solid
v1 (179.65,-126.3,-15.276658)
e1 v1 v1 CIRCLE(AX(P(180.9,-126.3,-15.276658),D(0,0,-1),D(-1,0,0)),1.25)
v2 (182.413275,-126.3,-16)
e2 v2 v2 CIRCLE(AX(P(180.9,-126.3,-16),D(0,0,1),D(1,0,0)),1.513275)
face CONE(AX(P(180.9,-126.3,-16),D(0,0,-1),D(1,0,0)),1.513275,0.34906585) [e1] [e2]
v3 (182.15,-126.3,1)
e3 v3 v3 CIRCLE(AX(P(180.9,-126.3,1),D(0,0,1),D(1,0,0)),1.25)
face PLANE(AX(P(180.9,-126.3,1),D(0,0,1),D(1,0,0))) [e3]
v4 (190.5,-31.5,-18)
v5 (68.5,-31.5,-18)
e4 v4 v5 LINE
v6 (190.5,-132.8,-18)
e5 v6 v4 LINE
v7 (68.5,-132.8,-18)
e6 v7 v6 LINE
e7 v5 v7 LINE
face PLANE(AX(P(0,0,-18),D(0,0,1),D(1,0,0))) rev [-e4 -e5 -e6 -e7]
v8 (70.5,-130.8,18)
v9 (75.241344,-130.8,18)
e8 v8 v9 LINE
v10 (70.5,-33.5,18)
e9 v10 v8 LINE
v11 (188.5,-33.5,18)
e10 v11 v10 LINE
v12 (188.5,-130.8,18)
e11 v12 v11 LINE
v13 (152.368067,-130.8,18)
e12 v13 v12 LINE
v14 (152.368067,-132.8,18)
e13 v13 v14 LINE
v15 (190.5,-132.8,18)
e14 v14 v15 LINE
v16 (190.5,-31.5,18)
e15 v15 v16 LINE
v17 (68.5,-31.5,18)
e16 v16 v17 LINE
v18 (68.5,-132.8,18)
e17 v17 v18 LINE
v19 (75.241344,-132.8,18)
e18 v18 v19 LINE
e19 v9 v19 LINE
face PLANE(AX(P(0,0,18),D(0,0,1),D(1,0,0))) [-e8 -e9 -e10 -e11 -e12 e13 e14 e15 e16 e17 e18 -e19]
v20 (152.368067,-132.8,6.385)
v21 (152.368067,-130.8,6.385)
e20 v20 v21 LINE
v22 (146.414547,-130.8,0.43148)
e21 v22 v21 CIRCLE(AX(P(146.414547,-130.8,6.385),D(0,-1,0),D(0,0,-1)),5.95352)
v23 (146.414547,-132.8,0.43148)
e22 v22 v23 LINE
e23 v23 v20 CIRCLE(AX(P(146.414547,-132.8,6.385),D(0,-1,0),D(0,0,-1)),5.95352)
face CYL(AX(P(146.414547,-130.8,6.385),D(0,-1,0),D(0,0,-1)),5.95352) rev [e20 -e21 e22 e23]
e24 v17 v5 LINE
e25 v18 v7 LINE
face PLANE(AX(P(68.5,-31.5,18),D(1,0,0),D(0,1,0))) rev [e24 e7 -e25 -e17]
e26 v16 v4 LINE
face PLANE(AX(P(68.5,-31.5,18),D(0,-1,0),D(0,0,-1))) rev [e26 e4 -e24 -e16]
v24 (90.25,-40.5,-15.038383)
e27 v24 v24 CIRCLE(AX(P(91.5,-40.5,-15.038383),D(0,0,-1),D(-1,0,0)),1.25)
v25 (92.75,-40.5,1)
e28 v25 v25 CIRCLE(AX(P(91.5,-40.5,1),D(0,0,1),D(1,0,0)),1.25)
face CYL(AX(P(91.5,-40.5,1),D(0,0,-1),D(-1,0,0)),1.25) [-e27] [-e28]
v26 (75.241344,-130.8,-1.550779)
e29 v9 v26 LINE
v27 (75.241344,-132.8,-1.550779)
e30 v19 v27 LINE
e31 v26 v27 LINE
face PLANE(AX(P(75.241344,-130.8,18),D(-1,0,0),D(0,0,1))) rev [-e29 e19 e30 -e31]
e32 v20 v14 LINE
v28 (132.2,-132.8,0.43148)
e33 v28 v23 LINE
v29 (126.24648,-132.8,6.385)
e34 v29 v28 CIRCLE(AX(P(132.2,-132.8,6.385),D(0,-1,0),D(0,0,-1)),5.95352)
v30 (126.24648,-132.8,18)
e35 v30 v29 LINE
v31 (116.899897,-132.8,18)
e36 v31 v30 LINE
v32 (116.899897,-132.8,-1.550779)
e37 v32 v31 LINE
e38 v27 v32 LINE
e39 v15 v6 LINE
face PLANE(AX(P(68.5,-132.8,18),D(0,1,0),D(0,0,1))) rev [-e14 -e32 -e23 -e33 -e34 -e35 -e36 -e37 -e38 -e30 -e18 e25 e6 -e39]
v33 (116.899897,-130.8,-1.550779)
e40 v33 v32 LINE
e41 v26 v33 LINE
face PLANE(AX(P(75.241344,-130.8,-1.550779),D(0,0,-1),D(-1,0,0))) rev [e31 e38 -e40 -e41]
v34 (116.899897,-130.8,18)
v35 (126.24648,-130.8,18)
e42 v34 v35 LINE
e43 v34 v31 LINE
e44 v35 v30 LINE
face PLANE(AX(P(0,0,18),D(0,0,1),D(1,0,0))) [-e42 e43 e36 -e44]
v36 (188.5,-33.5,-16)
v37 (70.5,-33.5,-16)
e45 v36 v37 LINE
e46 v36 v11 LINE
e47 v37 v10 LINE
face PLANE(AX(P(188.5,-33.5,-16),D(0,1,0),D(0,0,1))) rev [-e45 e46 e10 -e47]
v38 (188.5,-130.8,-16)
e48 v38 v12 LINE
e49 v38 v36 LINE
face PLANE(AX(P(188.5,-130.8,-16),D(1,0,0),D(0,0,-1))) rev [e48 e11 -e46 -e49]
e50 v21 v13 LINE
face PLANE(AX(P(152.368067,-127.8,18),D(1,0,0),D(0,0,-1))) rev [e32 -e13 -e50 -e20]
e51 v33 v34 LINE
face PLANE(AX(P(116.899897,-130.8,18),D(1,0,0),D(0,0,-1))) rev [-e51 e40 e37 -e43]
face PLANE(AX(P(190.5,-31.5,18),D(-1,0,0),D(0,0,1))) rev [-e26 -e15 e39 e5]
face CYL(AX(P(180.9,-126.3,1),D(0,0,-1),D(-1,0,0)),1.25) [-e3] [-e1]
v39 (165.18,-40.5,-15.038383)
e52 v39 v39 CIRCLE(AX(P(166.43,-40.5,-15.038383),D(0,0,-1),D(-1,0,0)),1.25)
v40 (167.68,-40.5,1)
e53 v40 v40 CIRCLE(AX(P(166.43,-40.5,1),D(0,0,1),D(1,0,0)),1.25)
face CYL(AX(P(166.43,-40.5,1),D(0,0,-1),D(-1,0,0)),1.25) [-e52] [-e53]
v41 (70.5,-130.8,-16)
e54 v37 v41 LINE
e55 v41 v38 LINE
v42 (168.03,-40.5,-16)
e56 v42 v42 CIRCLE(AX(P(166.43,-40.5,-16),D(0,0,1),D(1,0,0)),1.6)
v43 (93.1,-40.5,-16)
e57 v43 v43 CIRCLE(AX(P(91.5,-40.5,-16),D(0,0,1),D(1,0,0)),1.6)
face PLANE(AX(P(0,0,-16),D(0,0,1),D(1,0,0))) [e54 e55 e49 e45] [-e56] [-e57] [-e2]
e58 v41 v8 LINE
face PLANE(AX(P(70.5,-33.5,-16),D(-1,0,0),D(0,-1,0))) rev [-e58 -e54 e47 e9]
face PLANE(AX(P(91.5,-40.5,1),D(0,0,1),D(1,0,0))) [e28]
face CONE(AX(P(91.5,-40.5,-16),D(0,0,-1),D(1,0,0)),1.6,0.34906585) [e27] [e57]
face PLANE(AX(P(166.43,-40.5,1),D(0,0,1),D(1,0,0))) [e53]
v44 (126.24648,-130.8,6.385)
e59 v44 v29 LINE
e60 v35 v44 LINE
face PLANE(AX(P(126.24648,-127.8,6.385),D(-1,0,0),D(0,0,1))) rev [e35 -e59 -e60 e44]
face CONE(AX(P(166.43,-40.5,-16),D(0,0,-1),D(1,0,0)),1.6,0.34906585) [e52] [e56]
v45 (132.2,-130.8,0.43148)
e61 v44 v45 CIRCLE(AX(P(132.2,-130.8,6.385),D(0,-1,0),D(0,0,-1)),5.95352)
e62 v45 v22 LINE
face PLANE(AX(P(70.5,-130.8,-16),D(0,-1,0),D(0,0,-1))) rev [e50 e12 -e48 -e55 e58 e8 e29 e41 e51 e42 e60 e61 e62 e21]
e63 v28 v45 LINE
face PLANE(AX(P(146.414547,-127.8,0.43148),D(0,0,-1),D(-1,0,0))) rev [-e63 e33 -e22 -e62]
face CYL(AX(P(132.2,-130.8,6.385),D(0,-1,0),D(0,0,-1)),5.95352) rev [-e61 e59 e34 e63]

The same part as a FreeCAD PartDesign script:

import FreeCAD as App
import Part
import Sketcher
Q = App.Units.Quantity

doc = App.newDocument("Part")
body = doc.addObject("PartDesign::Body", "Body")

sketch1 = doc.addObject("Sketcher::SketchObject", "Sketch")
body.addObject(sketch1)
sketch1.AttachmentSupport = (doc.XY_Plane, [""])
sketch1.MapMode = "FlatFace"
sketch1.addGeometry([
    Part.LineSegment(App.Vector(68, -32, 0), App.Vector(68, -133, 0)),
    Part.LineSegment(App.Vector(68, -133, 0), App.Vector(190, -133, 0)),
    Part.LineSegment(App.Vector(190, -133, 0), App.Vector(190, -32, 0)),
    Part.LineSegment(App.Vector(190, -32, 0), App.Vector(68, -32, 0)),
], False)
sketch1.addConstraint([
    Sketcher.Constraint("Coincident", 0, 2, 1, 1),
    Sketcher.Constraint("Coincident", 1, 2, 2, 1),
    Sketcher.Constraint("Coincident", 2, 2, 3, 1),
    Sketcher.Constraint("Coincident", 3, 2, 0, 1),
    Sketcher.Constraint("Vertical", 0),
    Sketcher.Constraint("Horizontal", 1),
    Sketcher.Constraint("Vertical", 2),
    Sketcher.Constraint("Horizontal", 3),
    Sketcher.Constraint("DistanceX", 1, 1, 1, 2, Q("122 mm")),
    Sketcher.Constraint("DistanceY", 0, 2, 0, 1, Q("101.3 mm")),
    Sketcher.Constraint("DistanceX", -1, 1, 0, 2, Q("68.5 mm")),
    Sketcher.Constraint("DistanceY", 0, 2, -1, 1, Q("132.8 mm")),
])
pad1 = doc.addObject("PartDesign::Pad", "Pad")
body.addObject(pad1)
pad1.Profile = sketch1
pad1.Length = 36
pad1.Midplane = True

sketch2 = doc.addObject("Sketcher::SketchObject", "Sketch001")
body.addObject(sketch2)
sketch2.AttachmentSupport = (doc.XY_Plane, [""])
sketch2.MapMode = "FlatFace"
sketch2.AttachmentOffset = App.Placement(App.Vector(0, 0, 18), App.Rotation())
sketch2.addGeometry([
    Part.LineSegment(App.Vector(70, -34, 0), App.Vector(70, -131, 0)),
    Part.LineSegment(App.Vector(70, -131, 0), App.Vector(188, -131, 0)),
    Part.LineSegment(App.Vector(188, -131, 0), App.Vector(188, -34, 0)),
    Part.LineSegment(App.Vector(188, -34, 0), App.Vector(70, -34, 0)),
], False)
sketch2.addConstraint([
    Sketcher.Constraint("Coincident", 0, 2, 1, 1),
    Sketcher.Constraint("Coincident", 1, 2, 2, 1),
    Sketcher.Constraint("Coincident", 2, 2, 3, 1),
    Sketcher.Constraint("Coincident", 3, 2, 0, 1),
    Sketcher.Constraint("Vertical", 0),
    Sketcher.Constraint("Horizontal", 1),
    Sketcher.Constraint("Vertical", 2),
    Sketcher.Constraint("Horizontal", 3),
    Sketcher.Constraint("DistanceX", 1, 1, 1, 2, Q("118 mm")),
    Sketcher.Constraint("DistanceY", 0, 2, 0, 1, Q("97.3 mm")),
    Sketcher.Constraint("DistanceX", -1, 1, 0, 2, Q("70.5 mm")),
    Sketcher.Constraint("DistanceY", 0, 2, -1, 1, Q("130.8 mm")),
])
pocket1 = doc.addObject("PartDesign::Pocket", "Pocket")
body.addObject(pocket1)
pocket1.Profile = sketch2
pocket1.Length = 34

sketch3 = doc.addObject("Sketcher::SketchObject", "Sketch002")
body.addObject(sketch3)
sketch3.AttachmentSupport = (doc.XZ_Plane, [""])
sketch3.MapMode = "FlatFace"
sketch3.AttachmentOffset = App.Placement(App.Vector(0, 0, 132.8), App.Rotation())
sketch3.addGeometry([
    Part.Circle(App.Vector(132, 6, 0), App.Vector(0, 0, 1), 6),
    Part.Circle(App.Vector(146, 6, 0), App.Vector(0, 0, 1), 6),
], False)
sketch3.addConstraint([
    Sketcher.Constraint("Equal", 0, 1),
    Sketcher.Constraint("Horizontal", 0, 3, 1, 3),
    Sketcher.Constraint("DistanceX", -1, 1, 0, 3, Q("132.2 mm")),
    Sketcher.Constraint("Diameter", 0, Q("11.90704 mm")),
    Sketcher.Constraint("DistanceY", -1, 1, 0, 3, Q("6.385 mm")),
    Sketcher.Constraint("DistanceX", -1, 1, 1, 3, Q("146.414547 mm")),
])
pocket2 = doc.addObject("PartDesign::Pocket", "Pocket001")
body.addObject(pocket2)
pocket2.Profile = sketch3
pocket2.Length = 2

sketch4 = doc.addObject("Sketcher::SketchObject", "Sketch003")
body.addObject(sketch4)
sketch4.AttachmentSupport = (doc.XZ_Plane, [""])
sketch4.MapMode = "FlatFace"
sketch4.AttachmentOffset = App.Placement(App.Vector(0, 0, 132.8), App.Rotation())
sketch4.addGeometry([
    Part.LineSegment(App.Vector(117, -2, 0), App.Vector(117, 18, 0)),
    Part.LineSegment(App.Vector(117, 18, 0), App.Vector(75, 18, 0)),
    Part.LineSegment(App.Vector(75, 18, 0), App.Vector(75, -2, 0)),
    Part.LineSegment(App.Vector(75, -2, 0), App.Vector(117, -2, 0)),
], False)
sketch4.addConstraint([
    Sketcher.Constraint("Coincident", 0, 2, 1, 1),
    Sketcher.Constraint("Coincident", 1, 2, 2, 1),
    Sketcher.Constraint("Coincident", 2, 2, 3, 1),
    Sketcher.Constraint("Coincident", 3, 2, 0, 1),
    Sketcher.Constraint("Vertical", 0),
    Sketcher.Constraint("Horizontal", 1),
    Sketcher.Constraint("Vertical", 2),
    Sketcher.Constraint("Horizontal", 3),
    Sketcher.Constraint("DistanceY", -1, 1, 0, 2, Q("18 mm")),
    Sketcher.Constraint("DistanceY", 0, 1, 0, 2, Q("19.550779 mm")),
    Sketcher.Constraint("DistanceX", 1, 2, 1, 1, Q("41.658554 mm")),
    Sketcher.Constraint("DistanceX", -1, 1, 0, 2, Q("116.899897 mm")),
])
pocket3 = doc.addObject("PartDesign::Pocket", "Pocket002")
body.addObject(pocket3)
pocket3.Profile = sketch4
pocket3.Length = 2

sketch5 = doc.addObject("Sketcher::SketchObject", "Sketch004")
body.addObject(sketch5)
sketch5.AttachmentSupport = (doc.XZ_Plane, [""])
sketch5.MapMode = "FlatFace"
sketch5.AttachmentOffset = App.Placement(App.Vector(0, 0, 132.8), App.Rotation())
sketch5.addGeometry([
    Part.LineSegment(App.Vector(152, 6, 0), App.Vector(152, 18, 0)),
    Part.LineSegment(App.Vector(152, 18, 0), App.Vector(140, 18, 0)),
    Part.LineSegment(App.Vector(140, 18, 0), App.Vector(140, 6, 0)),
    Part.LineSegment(App.Vector(140, 6, 0), App.Vector(152, 6, 0)),
], False)
sketch5.addConstraint([
    Sketcher.Constraint("Coincident", 0, 2, 1, 1),
    Sketcher.Constraint("Coincident", 1, 2, 2, 1),
    Sketcher.Constraint("Coincident", 2, 2, 3, 1),
    Sketcher.Constraint("Coincident", 3, 2, 0, 1),
    Sketcher.Constraint("Vertical", 0),
    Sketcher.Constraint("Horizontal", 1),
    Sketcher.Constraint("Vertical", 2),
    Sketcher.Constraint("Horizontal", 3),
    Sketcher.Constraint("DistanceY", -1, 1, 0, 2, Q("18 mm")),
    Sketcher.Constraint("DistanceY", 0, 1, 0, 2, Q("11.615 mm")),
    Sketcher.Constraint("DistanceX", 1, 2, 1, 1, Q("11.90704 mm")),
    Sketcher.Constraint("DistanceX", -1, 1, 0, 2, Q("152.368067 mm")),
])
pocket4 = doc.addObject("PartDesign::Pocket", "Pocket003")
body.addObject(pocket4)
pocket4.Profile = sketch5
pocket4.Length = 5

sketch6 = doc.addObject("Sketcher::SketchObject", "Sketch005")
body.addObject(sketch6)
sketch6.AttachmentSupport = (doc.XZ_Plane, [""])
sketch6.MapMode = "FlatFace"
sketch6.AttachmentOffset = App.Placement(App.Vector(0, 0, 132.8), App.Rotation())
sketch6.addGeometry([
    Part.LineSegment(App.Vector(138, 6, 0), App.Vector(138, 18, 0)),
    Part.LineSegment(App.Vector(138, 18, 0), App.Vector(126, 18, 0)),
    Part.LineSegment(App.Vector(126, 18, 0), App.Vector(126, 6, 0)),
    Part.LineSegment(App.Vector(126, 6, 0), App.Vector(138, 6, 0)),
], False)
sketch6.addConstraint([
    Sketcher.Constraint("Coincident", 0, 2, 1, 1),
    Sketcher.Constraint("Coincident", 1, 2, 2, 1),
    Sketcher.Constraint("Coincident", 2, 2, 3, 1),
    Sketcher.Constraint("Coincident", 3, 2, 0, 1),
    Sketcher.Constraint("Vertical", 0),
    Sketcher.Constraint("Horizontal", 1),
    Sketcher.Constraint("Vertical", 2),
    Sketcher.Constraint("Horizontal", 3),
    Sketcher.Constraint("DistanceY", -1, 1, 0, 2, Q("18 mm")),
    Sketcher.Constraint("DistanceY", 0, 1, 0, 2, Q("11.615 mm")),
    Sketcher.Constraint("DistanceX", 1, 2, 1, 1, Q("11.90704 mm")),
    Sketcher.Constraint("DistanceX", -1, 1, 0, 2, Q("138.15352 mm")),
])
pocket5 = doc.addObject("PartDesign::Pocket", "Pocket004")
body.addObject(pocket5)
pocket5.Profile = sketch6
pocket5.Length = 5

sketch7 = doc.addObject("Sketcher::SketchObject", "Sketch006")
body.addObject(sketch7)
sketch7.AttachmentSupport = (doc.XY_Plane, [""])
sketch7.MapMode = "FlatFace"
sketch7.AttachmentOffset = App.Placement(App.Vector(0, 0, -16), App.Rotation())
sketch7.addGeometry(Part.Circle(App.Vector(91.5, -40.5, 0), App.Vector(0, 0, 1), 1.2), False)
sketch7.addConstraint([
    Sketcher.Constraint("Diameter", 0, Q("2.5 mm")),
    Sketcher.Constraint("DistanceX", -1, 1, 0, 3, Q("91.5 mm")),
    Sketcher.Constraint("DistanceY", 0, 3, -1, 1, Q("40.5 mm")),
])
pad2 = doc.addObject("PartDesign::Pad", "Pad001")
body.addObject(pad2)
pad2.Profile = sketch7
pad2.Length = 17

sketch8 = doc.addObject("Sketcher::SketchObject", "Sketch007")
body.addObject(sketch8)
sketch8.AttachmentSupport = (doc.XY_Plane, [""])
sketch8.MapMode = "FlatFace"
sketch8.AttachmentOffset = App.Placement(App.Vector(0, 0, -16), App.Rotation())
sketch8.addGeometry(Part.Circle(App.Vector(166.4, -40.5, 0), App.Vector(0, 0, 1), 1.2), False)
sketch8.addConstraint([
    Sketcher.Constraint("Diameter", 0, Q("2.5 mm")),
    Sketcher.Constraint("DistanceY", 0, 3, -1, 1, Q("40.5 mm")),
    Sketcher.Constraint("DistanceX", -1, 1, 0, 3, Q("166.43 mm")),
])
pad3 = doc.addObject("PartDesign::Pad", "Pad002")
body.addObject(pad3)
pad3.Profile = sketch8
pad3.Length = 17

sketch9 = doc.addObject("Sketcher::SketchObject", "Sketch008")
body.addObject(sketch9)
sketch9.AttachmentSupport = (doc.XY_Plane, [""])
sketch9.MapMode = "FlatFace"
sketch9.AttachmentOffset = App.Placement(App.Vector(0, 0, -16), App.Rotation())
sketch9.addGeometry(Part.Circle(App.Vector(180.9, -126.3, 0), App.Vector(0, 0, 1), 1.2), False)
sketch9.addConstraint([
    Sketcher.Constraint("Diameter", 0, Q("2.5 mm")),
    Sketcher.Constraint("DistanceX", -1, 1, 0, 3, Q("180.9 mm")),
    Sketcher.Constraint("DistanceY", 0, 3, -1, 1, Q("126.3 mm")),
])
pad4 = doc.addObject("PartDesign::Pad", "Pad003")
body.addObject(pad4)
pad4.Profile = sketch9
pad4.Length = 17

sketch10 = doc.addObject("Sketcher::SketchObject", "Sketch009")
body.addObject(sketch10)
sketch10.AttachmentSupport = (doc.XZ_Plane, [""])
sketch10.MapMode = "FlatFace"
sketch10.AttachmentOffset = App.Placement(App.Vector(0, 0, 132.8), App.Rotation())
sketch10.addGeometry([
    Part.LineSegment(App.Vector(146, 0, 0), App.Vector(146, 18, 0)),
    Part.LineSegment(App.Vector(146, 18, 0), App.Vector(132, 18, 0)),
    Part.LineSegment(App.Vector(132, 18, 0), App.Vector(132, 0, 0)),
    Part.LineSegment(App.Vector(132, 0, 0), App.Vector(146, 0, 0)),
], False)
sketch10.addConstraint([
    Sketcher.Constraint("Coincident", 0, 2, 1, 1),
    Sketcher.Constraint("Coincident", 1, 2, 2, 1),
    Sketcher.Constraint("Coincident", 2, 2, 3, 1),
    Sketcher.Constraint("Coincident", 3, 2, 0, 1),
    Sketcher.Constraint("Vertical", 0),
    Sketcher.Constraint("Horizontal", 1),
    Sketcher.Constraint("Vertical", 2),
    Sketcher.Constraint("Horizontal", 3),
    Sketcher.Constraint("DistanceY", -1, 1, 0, 2, Q("18 mm")),
    Sketcher.Constraint("DistanceX", -1, 1, 1, 2, Q("132.2 mm")),
    Sketcher.Constraint("DistanceY", 0, 1, 0, 2, Q("17.56852 mm")),
    Sketcher.Constraint("DistanceX", 1, 2, 1, 1, Q("14.214547 mm")),
])
pocket6 = doc.addObject("PartDesign::Pocket", "Pocket005")
body.addObject(pocket6)
pocket6.Profile = sketch10
pocket6.Length = 5

sketch11 = doc.addObject("Sketcher::SketchObject", "Sketch010")
body.addObject(sketch11)
sketch11.AttachmentSupport = (doc.XY_Plane, [""])
sketch11.MapMode = "FlatFace"
sketch11.AttachmentOffset = App.Placement(App.Vector(0, 0, -16), App.Rotation())
sketch11.addGeometry(Part.Circle(App.Vector(91.5, -40.5, 0), App.Vector(0, 0, 1), 1.6), False)
sketch11.addConstraint([
    Sketcher.Constraint("Diameter", 0, Q("3.2 mm")),
    Sketcher.Constraint("DistanceX", -1, 1, 0, 3, Q("91.5 mm")),
    Sketcher.Constraint("DistanceY", 0, 3, -1, 1, Q("40.5 mm")),
])
pad5 = doc.addObject("PartDesign::Pad", "Pad004")
body.addObject(pad5)
pad5.Profile = sketch11
pad5.Length = 1
pad5.TaperAngle = -20

sketch12 = doc.addObject("Sketcher::SketchObject", "Sketch011")
body.addObject(sketch12)
sketch12.AttachmentSupport = (doc.XY_Plane, [""])
sketch12.MapMode = "FlatFace"
sketch12.AttachmentOffset = App.Placement(App.Vector(0, 0, -16), App.Rotation())
sketch12.addGeometry(Part.Circle(App.Vector(166.4, -40.5, 0), App.Vector(0, 0, 1), 1.6), False)
sketch12.addConstraint([
    Sketcher.Constraint("Diameter", 0, Q("3.2 mm")),
    Sketcher.Constraint("DistanceY", 0, 3, -1, 1, Q("40.5 mm")),
    Sketcher.Constraint("DistanceX", -1, 1, 0, 3, Q("166.43 mm")),
])
pad6 = doc.addObject("PartDesign::Pad", "Pad005")
body.addObject(pad6)
pad6.Profile = sketch12
pad6.Length = 1
pad6.TaperAngle = -20

sketch13 = doc.addObject("Sketcher::SketchObject", "Sketch012")
body.addObject(sketch13)
sketch13.AttachmentSupport = (doc.XY_Plane, [""])
sketch13.MapMode = "FlatFace"
sketch13.AttachmentOffset = App.Placement(App.Vector(0, 0, -16), App.Rotation())
sketch13.addGeometry(Part.Circle(App.Vector(180.9, -126.3, 0), App.Vector(0, 0, 1), 1.5), False)
sketch13.addConstraint([
    Sketcher.Constraint("DistanceX", -1, 1, 0, 3, Q("180.9 mm")),
    Sketcher.Constraint("DistanceY", 0, 3, -1, 1, Q("126.3 mm")),
    Sketcher.Constraint("Diameter", 0, Q("3.02655 mm")),
])
pad7 = doc.addObject("PartDesign::Pad", "Pad006")
body.addObject(pad7)
pad7.Profile = sketch13
pad7.Length = 1
pad7.TaperAngle = -20

doc.recompute()
